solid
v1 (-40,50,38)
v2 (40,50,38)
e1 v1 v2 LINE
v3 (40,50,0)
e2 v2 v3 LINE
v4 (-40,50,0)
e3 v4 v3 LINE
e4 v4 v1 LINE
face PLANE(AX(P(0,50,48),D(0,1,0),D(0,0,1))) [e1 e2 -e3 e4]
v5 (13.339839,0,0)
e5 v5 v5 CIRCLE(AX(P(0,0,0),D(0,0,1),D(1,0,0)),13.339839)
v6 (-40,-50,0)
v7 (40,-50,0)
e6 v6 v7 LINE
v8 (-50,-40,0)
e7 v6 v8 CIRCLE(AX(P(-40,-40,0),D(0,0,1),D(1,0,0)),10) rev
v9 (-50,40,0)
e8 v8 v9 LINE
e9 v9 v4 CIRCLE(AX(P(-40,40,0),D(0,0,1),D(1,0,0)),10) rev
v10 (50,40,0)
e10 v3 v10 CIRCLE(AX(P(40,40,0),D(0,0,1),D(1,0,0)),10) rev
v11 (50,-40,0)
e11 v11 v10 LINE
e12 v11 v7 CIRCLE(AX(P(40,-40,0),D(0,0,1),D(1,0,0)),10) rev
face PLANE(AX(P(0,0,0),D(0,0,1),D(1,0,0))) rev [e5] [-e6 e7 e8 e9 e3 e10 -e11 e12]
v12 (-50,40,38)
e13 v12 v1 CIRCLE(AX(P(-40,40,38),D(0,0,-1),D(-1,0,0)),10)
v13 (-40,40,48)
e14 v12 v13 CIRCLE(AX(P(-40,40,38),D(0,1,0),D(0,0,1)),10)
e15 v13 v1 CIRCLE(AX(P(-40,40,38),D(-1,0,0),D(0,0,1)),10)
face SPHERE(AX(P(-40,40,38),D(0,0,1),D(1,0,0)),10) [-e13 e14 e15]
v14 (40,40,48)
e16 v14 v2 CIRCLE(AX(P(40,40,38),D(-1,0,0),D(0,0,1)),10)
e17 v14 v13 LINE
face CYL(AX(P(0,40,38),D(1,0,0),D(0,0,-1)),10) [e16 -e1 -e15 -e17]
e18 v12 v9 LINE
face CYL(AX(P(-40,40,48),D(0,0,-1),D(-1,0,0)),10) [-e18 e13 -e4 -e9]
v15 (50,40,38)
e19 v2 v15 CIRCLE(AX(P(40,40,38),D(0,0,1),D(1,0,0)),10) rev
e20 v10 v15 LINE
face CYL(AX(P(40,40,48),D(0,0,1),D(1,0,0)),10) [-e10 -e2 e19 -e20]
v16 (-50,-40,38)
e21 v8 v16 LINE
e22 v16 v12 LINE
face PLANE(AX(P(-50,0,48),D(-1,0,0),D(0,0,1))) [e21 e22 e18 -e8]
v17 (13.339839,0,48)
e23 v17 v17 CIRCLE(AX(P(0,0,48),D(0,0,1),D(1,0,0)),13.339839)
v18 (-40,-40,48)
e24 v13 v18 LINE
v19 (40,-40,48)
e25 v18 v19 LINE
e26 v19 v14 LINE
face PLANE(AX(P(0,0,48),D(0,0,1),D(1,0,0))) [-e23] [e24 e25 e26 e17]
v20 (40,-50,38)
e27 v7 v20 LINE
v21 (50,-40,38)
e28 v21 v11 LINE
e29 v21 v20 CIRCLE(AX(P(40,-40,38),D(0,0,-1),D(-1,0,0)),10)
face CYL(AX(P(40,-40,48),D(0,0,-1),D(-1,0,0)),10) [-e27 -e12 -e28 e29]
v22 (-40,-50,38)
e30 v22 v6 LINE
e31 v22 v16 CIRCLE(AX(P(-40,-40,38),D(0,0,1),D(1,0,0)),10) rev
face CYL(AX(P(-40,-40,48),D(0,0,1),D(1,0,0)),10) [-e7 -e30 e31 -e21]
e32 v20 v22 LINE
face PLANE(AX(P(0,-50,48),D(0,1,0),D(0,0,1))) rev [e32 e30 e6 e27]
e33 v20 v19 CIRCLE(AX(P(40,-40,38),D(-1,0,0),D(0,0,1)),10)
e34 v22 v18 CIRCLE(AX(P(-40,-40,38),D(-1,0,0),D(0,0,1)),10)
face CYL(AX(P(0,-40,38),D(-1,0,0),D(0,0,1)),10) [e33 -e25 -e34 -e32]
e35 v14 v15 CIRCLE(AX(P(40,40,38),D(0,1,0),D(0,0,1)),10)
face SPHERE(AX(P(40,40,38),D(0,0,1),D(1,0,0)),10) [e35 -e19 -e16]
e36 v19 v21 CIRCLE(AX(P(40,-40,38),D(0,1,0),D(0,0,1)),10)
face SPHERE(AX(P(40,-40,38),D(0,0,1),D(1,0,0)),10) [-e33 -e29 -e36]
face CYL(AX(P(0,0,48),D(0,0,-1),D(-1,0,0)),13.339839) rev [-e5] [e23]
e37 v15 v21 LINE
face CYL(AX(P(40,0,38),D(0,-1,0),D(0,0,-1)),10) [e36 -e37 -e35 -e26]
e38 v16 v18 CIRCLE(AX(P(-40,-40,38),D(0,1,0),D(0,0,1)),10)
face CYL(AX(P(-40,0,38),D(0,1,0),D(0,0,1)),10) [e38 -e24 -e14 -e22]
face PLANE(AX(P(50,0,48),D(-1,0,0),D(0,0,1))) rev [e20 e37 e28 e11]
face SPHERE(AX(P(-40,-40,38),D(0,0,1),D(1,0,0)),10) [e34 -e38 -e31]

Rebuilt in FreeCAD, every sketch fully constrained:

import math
import FreeCAD as App
import Part
import Sketcher
Q = App.Units.Quantity


def edges_at(feature, points):
    """Names of the edges that pass closest to the given points."""
    edges = feature.Shape.Edges
    near = lambda p: min(range(len(edges)), key=lambda i: edges[i].distToShape(Part.Vertex(*p))[0])
    return sorted({f"Edge{near(p) + 1}" for p in points})


def add_polygon(sketch, points):
    """Adds a closed chain of lines whose ends are joined by coincident constraints."""
    first, n = sketch.GeometryCount, len(points)
    for a, b in zip(points, points[1:] + points[:1]):
        sketch.addGeometry(Part.LineSegment(App.Vector(*a, 0), App.Vector(*b, 0)), False)
    for i in range(n):
        sketch.addConstraint(Sketcher.Constraint("Coincident", first + i, 2, first + (i + 1) % n, 1))

doc = App.newDocument("Part")
params = doc.addObject("Spreadsheet::Sheet", "Params")
for row, (alias, value) in enumerate([
    ("sketch1_width", "100 mm"),
    ("pad1_length", "48 mm"),
    ("fillet_radius", "10 mm"),
    ("fillet2_radius", "10 mm"),
], start=1):
    params.set(f"A{row}", alias)
    params.set(f"B{row}", "=" + value)
    params.setAlias(f"B{row}", alias)

body = doc.addObject("PartDesign::Body", "Body")

# Sketch on XY plane
sketch1 = body.newObject("Sketcher::SketchObject", "Sketch")
sketch1.AttachmentSupport = (doc.getObject("XY_Plane"), [""])
sketch1.MapMode = "FlatFace"
add_polygon(sketch1, [(-50, 50), (-50, -50), (50, -50), (50, 50)])  # lines 0-3
sketch1.addGeometry(Part.ArcOfCircle(Part.Circle(App.Vector(0, 0, 0), App.Vector(0, 0, 1), 13.339839), math.radians(0), math.radians(90)), False)  # 4
sketch1.addGeometry(Part.ArcOfCircle(Part.Circle(App.Vector(0, 0, 0), App.Vector(0, 0, 1), 13.339839), math.radians(-90), math.radians(0)), False)  # 5
sketch1.addGeometry(Part.ArcOfCircle(Part.Circle(App.Vector(0, 0, 0), App.Vector(0, 0, 1), 13.339839), math.radians(90), math.radians(270)), False)  # 6
sketch1.addConstraint([
    Sketcher.Constraint("Tangent", 4, 1, 5, 2),
    Sketcher.Constraint("Tangent", 5, 1, 6, 2),
    Sketcher.Constraint("Tangent", 6, 1, 4, 2),
    Sketcher.Constraint("Vertical", 0),
    Sketcher.Constraint("Horizontal", 1),
    Sketcher.Constraint("Vertical", 2),
    Sketcher.Constraint("Horizontal", 3),
    Sketcher.Constraint("Coincident", 4, 3, -1, 1),
    Sketcher.Constraint("Symmetric", 0, 2, 2, 2, -1, 1),
    Sketcher.Constraint("PointOnObject", 4, 1, -1),
    Sketcher.Constraint("PointOnObject", 5, 1, -2),
    Sketcher.Constraint("PointOnObject", 6, 1, -2),
    Sketcher.Constraint("Equal", 3, 0),
    Sketcher.Constraint("DistanceX", 1, 1, 1, 2, Q("100 mm")),
    Sketcher.Constraint("Radius", 4, Q("13.339839 mm")),
])
sketch1.setExpression("Constraints[17]", "Params.sketch1_width")
pad1 = body.newObject("PartDesign::Pad", "Pad")
pad1.Profile = sketch1
pad1.setExpression("Length", "Params.pad1_length")
doc.recompute()

fillet = body.newObject("PartDesign::Fillet", "Fillet")
fillet.Base = (pad1, edges_at(pad1, [
    (50, -50, 24),
    (-50, -50, 24),
    (-50, 50, 24),
    (50, 50, 24),
]))
fillet.setExpression("Radius", "Params.fillet_radius")
doc.recompute()

fillet2 = body.newObject("PartDesign::Fillet", "Fillet001")
fillet2.Base = (fillet, edges_at(fillet, [
    (0, -50, 48),
    (-50, 0, 48),
    (50, 0, 48),
    (0, 50, 48),
    (-47.071, 47.071, 48),
    (47.071, 47.071, 48),
    (47.071, -47.071, 48),
    (-47.071, -47.071, 48),
]))
fillet2.setExpression("Radius", "Params.fillet2_radius")

doc.recompute()
